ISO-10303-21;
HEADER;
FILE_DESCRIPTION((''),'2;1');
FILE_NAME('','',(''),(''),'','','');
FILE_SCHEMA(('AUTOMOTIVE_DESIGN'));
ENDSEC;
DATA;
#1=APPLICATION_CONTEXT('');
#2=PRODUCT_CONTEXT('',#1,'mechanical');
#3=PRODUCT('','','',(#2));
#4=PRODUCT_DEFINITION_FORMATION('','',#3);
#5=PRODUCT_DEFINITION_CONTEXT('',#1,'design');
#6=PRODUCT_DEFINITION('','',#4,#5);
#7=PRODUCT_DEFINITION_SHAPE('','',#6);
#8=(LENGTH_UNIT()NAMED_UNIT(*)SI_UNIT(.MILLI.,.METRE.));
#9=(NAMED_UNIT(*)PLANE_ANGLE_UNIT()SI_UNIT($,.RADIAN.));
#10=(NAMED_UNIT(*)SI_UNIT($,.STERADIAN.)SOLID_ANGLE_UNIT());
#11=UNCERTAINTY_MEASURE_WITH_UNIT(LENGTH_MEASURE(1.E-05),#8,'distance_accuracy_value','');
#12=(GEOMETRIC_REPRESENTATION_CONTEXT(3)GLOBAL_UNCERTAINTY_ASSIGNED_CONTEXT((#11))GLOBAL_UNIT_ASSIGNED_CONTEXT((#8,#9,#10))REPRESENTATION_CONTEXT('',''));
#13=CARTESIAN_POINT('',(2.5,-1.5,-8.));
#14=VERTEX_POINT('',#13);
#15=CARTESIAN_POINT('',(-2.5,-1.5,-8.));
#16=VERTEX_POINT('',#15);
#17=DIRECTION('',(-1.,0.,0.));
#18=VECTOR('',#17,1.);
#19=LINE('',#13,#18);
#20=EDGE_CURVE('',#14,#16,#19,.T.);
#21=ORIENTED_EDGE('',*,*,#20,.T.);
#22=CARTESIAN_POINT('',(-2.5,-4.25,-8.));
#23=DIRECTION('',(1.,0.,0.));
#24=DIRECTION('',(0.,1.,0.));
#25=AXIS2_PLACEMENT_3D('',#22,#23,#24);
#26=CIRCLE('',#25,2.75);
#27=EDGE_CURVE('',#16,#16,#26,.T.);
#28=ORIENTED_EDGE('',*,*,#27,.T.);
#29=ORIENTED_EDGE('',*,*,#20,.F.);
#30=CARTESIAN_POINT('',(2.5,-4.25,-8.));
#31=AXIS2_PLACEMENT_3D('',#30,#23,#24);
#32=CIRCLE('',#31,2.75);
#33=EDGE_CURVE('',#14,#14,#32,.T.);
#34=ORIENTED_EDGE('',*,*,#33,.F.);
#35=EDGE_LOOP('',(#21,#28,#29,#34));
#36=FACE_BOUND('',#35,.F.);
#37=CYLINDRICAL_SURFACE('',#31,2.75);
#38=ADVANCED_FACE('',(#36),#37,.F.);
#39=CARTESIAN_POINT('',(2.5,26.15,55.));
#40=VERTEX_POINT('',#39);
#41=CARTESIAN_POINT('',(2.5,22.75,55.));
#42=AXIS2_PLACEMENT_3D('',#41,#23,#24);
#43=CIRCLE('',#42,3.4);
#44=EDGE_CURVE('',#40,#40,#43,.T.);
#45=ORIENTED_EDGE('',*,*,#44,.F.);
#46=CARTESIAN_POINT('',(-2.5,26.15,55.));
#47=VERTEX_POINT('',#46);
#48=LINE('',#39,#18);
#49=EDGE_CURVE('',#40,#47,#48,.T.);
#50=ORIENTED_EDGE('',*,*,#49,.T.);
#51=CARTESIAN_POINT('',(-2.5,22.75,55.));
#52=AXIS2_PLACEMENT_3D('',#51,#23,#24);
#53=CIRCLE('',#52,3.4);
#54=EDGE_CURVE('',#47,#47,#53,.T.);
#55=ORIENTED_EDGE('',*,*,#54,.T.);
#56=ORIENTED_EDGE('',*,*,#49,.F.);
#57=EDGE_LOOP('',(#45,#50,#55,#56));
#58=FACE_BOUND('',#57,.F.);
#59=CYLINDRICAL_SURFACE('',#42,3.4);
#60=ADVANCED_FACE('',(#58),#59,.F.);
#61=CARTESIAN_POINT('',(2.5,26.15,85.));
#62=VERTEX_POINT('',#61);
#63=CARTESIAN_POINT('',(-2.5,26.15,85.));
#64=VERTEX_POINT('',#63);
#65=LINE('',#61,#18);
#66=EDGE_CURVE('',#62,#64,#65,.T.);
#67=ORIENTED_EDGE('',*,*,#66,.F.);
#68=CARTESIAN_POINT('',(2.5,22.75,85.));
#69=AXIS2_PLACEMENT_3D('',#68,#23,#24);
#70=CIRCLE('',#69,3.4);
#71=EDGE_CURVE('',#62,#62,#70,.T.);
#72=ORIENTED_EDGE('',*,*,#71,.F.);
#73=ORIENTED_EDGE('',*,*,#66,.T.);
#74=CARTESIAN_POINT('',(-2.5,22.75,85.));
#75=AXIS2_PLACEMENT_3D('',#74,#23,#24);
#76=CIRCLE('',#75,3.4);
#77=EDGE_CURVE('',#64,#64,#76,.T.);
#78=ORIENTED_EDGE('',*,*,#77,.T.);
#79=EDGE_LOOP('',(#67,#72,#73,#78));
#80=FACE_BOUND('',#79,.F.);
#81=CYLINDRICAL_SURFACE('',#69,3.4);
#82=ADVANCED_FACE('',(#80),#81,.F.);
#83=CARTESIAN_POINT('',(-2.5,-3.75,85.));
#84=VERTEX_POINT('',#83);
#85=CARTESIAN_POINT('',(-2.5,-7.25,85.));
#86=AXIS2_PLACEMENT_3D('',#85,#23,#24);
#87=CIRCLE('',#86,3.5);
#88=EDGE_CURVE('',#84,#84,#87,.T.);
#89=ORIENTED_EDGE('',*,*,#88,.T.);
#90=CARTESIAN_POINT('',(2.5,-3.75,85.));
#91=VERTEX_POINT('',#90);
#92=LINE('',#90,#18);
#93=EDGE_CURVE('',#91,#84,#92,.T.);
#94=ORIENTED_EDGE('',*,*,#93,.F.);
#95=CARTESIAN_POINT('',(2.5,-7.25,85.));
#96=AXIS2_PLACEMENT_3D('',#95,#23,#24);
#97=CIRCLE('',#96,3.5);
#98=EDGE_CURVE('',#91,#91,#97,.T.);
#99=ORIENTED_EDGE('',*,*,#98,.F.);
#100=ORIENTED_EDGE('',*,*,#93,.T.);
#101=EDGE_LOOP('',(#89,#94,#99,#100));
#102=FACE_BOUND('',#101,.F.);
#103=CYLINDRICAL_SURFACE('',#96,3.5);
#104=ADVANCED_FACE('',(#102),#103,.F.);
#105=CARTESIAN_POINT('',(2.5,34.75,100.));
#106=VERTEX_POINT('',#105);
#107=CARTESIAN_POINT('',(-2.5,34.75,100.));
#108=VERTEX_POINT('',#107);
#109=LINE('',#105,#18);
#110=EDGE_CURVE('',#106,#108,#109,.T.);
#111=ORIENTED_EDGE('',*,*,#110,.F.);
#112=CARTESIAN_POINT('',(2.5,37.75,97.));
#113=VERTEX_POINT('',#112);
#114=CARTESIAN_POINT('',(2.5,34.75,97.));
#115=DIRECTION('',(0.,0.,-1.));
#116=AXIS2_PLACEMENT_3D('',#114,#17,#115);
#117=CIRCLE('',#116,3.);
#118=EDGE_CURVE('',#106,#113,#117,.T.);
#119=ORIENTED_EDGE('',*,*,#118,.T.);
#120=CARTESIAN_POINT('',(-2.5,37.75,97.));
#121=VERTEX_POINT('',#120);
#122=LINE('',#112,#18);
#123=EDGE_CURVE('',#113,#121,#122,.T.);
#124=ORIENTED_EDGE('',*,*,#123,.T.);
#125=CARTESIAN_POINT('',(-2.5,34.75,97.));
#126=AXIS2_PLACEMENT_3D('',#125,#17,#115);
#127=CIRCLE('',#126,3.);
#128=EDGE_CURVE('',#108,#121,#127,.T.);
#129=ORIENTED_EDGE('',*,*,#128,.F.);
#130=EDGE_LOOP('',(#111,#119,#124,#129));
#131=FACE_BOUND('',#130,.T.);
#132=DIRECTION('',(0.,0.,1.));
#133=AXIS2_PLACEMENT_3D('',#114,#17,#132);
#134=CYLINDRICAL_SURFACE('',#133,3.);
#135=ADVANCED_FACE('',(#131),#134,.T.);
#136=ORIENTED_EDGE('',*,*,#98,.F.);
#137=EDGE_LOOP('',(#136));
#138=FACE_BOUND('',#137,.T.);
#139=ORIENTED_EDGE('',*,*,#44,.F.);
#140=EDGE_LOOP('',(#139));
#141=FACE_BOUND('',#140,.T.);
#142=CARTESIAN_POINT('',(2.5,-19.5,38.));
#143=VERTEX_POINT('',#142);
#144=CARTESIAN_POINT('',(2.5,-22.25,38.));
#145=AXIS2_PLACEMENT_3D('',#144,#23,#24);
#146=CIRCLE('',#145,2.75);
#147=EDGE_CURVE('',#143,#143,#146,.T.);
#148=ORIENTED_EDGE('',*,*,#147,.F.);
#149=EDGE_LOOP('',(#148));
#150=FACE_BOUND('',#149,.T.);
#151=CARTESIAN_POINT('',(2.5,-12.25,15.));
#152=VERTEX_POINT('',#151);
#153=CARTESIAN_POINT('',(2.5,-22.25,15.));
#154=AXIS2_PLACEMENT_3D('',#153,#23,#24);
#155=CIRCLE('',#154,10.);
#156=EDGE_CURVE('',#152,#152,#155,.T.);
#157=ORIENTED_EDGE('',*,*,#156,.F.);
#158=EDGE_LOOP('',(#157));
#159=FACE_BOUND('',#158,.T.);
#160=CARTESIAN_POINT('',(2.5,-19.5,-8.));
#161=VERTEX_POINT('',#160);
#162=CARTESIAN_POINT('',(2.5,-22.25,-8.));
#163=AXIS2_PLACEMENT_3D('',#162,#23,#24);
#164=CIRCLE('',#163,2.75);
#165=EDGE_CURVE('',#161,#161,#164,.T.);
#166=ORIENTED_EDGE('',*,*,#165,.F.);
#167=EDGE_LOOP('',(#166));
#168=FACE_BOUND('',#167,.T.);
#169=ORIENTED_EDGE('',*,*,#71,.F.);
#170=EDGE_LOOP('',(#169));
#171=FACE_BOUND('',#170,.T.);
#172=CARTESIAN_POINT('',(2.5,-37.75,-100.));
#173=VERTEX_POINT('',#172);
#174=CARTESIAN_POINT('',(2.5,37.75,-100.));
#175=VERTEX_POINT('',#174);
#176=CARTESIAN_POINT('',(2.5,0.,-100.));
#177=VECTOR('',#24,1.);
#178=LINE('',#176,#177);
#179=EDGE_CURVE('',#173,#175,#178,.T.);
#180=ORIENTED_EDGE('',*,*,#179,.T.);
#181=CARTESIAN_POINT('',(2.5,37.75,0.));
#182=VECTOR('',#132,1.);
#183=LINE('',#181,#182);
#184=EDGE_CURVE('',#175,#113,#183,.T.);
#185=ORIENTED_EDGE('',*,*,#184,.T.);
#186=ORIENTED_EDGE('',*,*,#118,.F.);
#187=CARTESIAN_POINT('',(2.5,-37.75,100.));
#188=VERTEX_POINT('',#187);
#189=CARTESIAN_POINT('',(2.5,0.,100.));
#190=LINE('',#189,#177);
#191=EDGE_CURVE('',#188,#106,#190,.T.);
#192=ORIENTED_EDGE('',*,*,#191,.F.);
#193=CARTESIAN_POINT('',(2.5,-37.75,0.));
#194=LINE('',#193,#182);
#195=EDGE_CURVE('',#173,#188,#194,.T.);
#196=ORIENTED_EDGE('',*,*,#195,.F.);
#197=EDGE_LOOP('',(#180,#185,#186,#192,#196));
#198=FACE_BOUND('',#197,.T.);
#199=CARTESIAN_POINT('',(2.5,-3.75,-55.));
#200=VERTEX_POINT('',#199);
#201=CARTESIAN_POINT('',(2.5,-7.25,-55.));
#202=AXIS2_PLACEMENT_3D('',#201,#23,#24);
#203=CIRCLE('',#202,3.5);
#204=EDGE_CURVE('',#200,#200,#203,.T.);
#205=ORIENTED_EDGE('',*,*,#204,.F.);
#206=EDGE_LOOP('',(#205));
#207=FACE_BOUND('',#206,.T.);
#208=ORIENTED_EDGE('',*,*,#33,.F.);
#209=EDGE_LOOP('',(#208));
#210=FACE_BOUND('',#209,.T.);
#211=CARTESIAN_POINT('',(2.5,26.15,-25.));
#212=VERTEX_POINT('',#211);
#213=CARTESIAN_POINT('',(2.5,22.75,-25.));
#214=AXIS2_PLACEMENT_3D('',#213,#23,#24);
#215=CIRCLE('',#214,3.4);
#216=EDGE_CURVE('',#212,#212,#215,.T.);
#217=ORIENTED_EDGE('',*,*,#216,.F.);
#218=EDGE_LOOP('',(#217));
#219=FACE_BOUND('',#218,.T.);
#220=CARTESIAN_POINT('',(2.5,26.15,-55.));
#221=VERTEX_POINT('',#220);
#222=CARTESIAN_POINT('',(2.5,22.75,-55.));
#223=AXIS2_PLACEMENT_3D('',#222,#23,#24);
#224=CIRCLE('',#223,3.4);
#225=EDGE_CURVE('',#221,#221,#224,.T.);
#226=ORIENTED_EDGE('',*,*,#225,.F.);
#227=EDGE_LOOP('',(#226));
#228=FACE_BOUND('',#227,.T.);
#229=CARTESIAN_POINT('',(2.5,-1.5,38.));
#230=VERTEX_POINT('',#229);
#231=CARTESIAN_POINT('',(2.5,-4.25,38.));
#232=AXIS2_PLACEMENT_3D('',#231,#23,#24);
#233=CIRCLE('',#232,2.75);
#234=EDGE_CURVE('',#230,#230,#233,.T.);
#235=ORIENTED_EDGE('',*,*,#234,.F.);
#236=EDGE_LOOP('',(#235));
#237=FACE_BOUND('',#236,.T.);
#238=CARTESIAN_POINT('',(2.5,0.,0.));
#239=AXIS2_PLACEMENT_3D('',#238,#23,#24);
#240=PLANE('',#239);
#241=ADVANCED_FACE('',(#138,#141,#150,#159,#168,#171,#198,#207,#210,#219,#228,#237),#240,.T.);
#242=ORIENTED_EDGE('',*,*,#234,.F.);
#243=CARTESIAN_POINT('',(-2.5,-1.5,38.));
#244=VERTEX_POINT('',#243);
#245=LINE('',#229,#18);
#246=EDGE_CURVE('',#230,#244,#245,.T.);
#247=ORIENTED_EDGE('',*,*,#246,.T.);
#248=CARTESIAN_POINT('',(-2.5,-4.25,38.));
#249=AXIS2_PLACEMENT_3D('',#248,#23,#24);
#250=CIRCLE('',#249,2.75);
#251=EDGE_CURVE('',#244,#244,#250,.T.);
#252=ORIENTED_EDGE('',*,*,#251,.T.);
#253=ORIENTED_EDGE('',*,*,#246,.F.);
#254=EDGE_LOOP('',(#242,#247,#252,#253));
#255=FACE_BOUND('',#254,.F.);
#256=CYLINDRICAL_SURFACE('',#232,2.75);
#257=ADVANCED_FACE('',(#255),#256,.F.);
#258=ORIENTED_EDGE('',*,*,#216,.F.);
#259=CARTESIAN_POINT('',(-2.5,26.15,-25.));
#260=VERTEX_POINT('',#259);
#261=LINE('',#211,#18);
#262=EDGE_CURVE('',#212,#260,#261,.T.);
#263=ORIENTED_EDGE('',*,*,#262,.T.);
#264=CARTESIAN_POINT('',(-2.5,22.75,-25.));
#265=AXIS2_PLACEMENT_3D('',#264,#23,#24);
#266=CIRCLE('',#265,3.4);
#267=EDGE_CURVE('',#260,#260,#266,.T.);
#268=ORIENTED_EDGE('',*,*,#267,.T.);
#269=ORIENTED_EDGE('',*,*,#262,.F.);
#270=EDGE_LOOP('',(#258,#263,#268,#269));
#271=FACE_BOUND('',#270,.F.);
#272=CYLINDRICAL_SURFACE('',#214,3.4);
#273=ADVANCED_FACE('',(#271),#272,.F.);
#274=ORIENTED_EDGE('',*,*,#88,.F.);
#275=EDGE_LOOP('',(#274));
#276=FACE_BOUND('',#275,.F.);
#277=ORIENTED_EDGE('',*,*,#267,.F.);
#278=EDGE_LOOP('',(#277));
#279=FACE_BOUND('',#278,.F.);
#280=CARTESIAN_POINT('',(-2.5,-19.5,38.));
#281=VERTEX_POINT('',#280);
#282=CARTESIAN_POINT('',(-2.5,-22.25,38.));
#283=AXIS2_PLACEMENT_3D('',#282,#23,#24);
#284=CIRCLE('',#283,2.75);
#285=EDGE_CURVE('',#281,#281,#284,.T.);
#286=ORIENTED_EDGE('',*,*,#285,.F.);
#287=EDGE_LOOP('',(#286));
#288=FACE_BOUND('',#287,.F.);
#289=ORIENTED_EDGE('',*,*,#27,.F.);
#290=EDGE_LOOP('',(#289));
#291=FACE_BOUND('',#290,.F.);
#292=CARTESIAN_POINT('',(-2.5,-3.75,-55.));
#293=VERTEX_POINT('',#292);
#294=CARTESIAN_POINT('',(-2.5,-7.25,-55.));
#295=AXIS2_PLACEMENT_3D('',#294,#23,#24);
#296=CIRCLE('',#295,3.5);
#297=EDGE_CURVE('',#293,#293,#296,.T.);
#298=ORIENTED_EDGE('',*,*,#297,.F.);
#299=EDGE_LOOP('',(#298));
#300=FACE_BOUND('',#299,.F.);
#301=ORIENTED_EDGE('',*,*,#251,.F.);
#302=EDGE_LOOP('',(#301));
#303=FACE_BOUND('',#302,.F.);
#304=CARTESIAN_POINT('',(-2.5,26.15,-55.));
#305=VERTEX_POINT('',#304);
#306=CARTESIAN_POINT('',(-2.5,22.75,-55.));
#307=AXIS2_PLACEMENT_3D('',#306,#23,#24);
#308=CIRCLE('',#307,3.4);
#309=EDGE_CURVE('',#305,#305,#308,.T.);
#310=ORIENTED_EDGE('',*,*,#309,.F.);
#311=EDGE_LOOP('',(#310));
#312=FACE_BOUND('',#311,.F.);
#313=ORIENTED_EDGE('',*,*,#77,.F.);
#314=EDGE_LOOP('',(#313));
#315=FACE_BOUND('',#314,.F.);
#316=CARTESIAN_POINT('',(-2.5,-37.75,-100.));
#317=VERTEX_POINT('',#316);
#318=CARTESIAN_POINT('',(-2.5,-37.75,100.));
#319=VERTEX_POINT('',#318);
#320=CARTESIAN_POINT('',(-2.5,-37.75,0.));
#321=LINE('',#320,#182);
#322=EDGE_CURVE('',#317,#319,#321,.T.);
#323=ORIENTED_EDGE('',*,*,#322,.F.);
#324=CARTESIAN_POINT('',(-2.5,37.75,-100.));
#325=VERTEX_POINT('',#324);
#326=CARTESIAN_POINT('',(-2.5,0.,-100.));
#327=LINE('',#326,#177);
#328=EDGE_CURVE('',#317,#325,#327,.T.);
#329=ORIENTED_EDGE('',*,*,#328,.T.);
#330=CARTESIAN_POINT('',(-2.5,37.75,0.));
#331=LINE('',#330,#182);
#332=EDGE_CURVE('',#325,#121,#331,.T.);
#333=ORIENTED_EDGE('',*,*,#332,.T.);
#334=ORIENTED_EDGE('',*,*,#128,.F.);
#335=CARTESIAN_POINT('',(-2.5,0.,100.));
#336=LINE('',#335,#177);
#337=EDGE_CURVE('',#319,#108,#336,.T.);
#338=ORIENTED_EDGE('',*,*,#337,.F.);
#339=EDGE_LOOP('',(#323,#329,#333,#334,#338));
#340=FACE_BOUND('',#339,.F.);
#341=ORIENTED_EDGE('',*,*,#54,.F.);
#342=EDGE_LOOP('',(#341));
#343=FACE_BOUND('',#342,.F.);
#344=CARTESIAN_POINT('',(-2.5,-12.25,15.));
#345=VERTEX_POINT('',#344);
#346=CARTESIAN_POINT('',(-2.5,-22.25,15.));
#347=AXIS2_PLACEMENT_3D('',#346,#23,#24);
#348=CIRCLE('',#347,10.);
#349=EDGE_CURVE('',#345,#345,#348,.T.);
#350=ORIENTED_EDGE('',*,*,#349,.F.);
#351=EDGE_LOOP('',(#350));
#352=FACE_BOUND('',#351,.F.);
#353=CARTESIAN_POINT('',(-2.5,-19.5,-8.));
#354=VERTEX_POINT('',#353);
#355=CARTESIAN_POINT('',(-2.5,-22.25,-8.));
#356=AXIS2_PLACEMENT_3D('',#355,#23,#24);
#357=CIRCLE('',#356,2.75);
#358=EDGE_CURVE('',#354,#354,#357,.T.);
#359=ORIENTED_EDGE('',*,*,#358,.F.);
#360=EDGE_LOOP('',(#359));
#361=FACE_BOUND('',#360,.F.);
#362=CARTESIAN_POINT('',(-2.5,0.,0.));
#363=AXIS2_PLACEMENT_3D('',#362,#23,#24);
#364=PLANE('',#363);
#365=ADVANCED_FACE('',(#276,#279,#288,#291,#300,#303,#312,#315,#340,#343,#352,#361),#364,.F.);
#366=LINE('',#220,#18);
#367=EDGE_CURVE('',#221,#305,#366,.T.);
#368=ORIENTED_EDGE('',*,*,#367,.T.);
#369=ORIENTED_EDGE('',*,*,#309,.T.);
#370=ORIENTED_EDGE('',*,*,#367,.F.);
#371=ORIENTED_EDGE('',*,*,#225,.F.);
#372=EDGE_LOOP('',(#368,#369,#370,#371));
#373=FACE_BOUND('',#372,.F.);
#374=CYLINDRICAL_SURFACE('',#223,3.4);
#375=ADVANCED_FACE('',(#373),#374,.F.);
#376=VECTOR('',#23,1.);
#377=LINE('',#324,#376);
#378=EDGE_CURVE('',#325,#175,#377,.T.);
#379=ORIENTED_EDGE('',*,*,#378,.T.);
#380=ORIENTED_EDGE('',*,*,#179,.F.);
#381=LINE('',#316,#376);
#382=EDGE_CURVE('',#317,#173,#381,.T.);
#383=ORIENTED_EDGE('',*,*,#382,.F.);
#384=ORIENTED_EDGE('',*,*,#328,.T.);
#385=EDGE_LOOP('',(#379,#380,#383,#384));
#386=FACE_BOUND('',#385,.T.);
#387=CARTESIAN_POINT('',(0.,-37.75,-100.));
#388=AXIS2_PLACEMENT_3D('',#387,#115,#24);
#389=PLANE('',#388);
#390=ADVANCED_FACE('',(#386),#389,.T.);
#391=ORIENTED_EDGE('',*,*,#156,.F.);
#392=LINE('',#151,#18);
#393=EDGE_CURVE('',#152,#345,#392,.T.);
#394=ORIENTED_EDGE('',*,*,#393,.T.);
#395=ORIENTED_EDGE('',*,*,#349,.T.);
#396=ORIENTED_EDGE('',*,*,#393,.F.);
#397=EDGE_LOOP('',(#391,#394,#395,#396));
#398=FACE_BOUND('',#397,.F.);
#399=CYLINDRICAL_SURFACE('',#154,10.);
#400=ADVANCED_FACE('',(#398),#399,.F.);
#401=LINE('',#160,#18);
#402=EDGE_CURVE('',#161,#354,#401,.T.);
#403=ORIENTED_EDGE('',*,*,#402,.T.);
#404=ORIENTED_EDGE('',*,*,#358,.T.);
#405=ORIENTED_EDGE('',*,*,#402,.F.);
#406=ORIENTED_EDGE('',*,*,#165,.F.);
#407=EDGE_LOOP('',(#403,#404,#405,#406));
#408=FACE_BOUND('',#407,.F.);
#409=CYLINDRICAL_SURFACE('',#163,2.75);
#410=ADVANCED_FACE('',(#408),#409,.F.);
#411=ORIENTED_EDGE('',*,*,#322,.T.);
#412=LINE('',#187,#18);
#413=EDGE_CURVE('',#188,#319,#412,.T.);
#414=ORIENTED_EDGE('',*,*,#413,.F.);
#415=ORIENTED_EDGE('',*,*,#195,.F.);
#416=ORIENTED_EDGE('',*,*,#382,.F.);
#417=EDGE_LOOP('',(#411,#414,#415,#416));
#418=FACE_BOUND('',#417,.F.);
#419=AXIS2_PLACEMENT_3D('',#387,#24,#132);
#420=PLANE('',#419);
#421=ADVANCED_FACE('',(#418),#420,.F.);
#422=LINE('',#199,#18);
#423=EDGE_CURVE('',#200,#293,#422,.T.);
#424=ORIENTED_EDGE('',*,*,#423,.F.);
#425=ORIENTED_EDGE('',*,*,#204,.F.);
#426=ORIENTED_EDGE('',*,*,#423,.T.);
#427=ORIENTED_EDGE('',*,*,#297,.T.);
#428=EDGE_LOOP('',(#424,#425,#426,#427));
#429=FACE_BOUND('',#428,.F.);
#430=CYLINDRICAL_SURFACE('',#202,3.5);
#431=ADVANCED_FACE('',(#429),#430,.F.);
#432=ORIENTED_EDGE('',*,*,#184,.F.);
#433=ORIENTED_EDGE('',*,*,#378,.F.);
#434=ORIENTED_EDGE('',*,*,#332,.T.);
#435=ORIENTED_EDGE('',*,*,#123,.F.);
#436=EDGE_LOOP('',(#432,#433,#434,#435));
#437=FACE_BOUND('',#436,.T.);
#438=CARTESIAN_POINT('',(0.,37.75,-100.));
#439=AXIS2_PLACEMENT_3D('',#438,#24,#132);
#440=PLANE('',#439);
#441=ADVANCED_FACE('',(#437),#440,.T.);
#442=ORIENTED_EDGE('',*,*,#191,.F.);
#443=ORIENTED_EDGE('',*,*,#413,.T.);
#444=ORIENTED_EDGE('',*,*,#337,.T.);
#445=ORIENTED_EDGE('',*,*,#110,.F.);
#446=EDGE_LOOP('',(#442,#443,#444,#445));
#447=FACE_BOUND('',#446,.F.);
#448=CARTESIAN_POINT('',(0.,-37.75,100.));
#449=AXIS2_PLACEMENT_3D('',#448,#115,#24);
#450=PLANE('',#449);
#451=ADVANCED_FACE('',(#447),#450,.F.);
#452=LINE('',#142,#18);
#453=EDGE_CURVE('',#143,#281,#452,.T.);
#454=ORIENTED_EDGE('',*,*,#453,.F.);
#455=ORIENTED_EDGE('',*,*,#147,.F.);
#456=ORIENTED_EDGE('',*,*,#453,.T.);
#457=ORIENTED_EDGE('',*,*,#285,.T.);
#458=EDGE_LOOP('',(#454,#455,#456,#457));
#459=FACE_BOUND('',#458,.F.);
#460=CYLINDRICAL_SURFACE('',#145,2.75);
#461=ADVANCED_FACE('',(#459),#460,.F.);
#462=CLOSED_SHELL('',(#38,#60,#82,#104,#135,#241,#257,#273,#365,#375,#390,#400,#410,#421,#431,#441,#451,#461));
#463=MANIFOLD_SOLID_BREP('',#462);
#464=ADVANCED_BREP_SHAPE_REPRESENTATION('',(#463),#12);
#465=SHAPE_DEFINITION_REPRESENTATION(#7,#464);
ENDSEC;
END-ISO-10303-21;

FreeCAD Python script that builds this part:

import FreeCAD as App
import Part
import Sketcher
from FreeCAD import Vector
Q = App.Units.Quantity


def edges_at(feature, points):
    """Names of the edges that pass closest to the given points."""
    edges = feature.Shape.Edges
    near = lambda p: min(range(len(edges)), key=lambda i: edges[i].distToShape(Part.Vertex(*p))[0])
    return sorted({f"Edge{near(p) + 1}" for p in points})

doc = App.newDocument("Part")
body = doc.addObject("PartDesign::Body", "Body")

# Sketch on YZ plane
sketch1 = body.newObject("Sketcher::SketchObject", "Sketch")
sketch1.AttachmentSupport = (doc.getObject("YZ_Plane"), [""])
sketch1.MapMode = "FlatFace"
sketch1.addGeometry([
    Part.LineSegment(Vector(-38, 100, 0), Vector(-38, -100, 0)),
    Part.LineSegment(Vector(-38, -100, 0), Vector(38, -100, 0)),
    Part.LineSegment(Vector(38, -100, 0), Vector(38, 100, 0)),
    Part.LineSegment(Vector(38, 100, 0), Vector(-38, 100, 0)),
], False)
sketch1.addConstraint([
    Sketcher.Constraint("Coincident", 0, 2, 1, 1),
    Sketcher.Constraint("Coincident", 1, 2, 2, 1),
    Sketcher.Constraint("Coincident", 2, 2, 3, 1),
    Sketcher.Constraint("Coincident", 3, 2, 0, 1),
    Sketcher.Constraint("Vertical", 0),
    Sketcher.Constraint("Horizontal", 1),
    Sketcher.Constraint("Vertical", 2),
    Sketcher.Constraint("Horizontal", 3),
    Sketcher.Constraint("Symmetric", 0, 2, 2, 2, -1, 1),
    Sketcher.Constraint("DistanceY", 0, 2, 0, 1, Q("200 mm")),
    Sketcher.Constraint("DistanceX", 1, 1, 1, 2, Q("75.5 mm")),
])
pad1 = body.newObject("PartDesign::Pad", "Pad")
pad1.Profile = sketch1
pad1.Length = 5
pad1.Midplane = True

# Sketch on YZ plane
sketch2 = body.newObject("Sketcher::SketchObject", "Sketch001")
sketch2.AttachmentSupport = (doc.getObject("YZ_Plane"), [""])
sketch2.MapMode = "FlatFace"
sketch2.AttachmentOffset = App.Placement(Vector(0, 0, 2.5), App.Rotation())
sketch2.addGeometry([
    Part.Circle(Vector(22.8, 85, 0), Vector(0, 0, 1), 3.4),  # 0
    Part.Circle(Vector(22.8, 55, 0), Vector(0, 0, 1), 3.4),  # 1
    Part.Circle(Vector(22.8, -55, 0), Vector(0, 0, 1), 3.4),  # 2
    Part.Circle(Vector(22.8, -25, 0), Vector(0, 0, 1), 3.4),  # 3
    Part.Circle(Vector(-7.2, 85, 0), Vector(0, 0, 1), 3.5),  # 4
    Part.Circle(Vector(-7.2, -55, 0), Vector(0, 0, 1), 3.5),  # 5
    Part.Circle(Vector(-22.2, 15, 0), Vector(0, 0, 1), 10),  # 6
    Part.Circle(Vector(-22.2, 38, 0), Vector(0, 0, 1), 2.8),  # 7
    Part.Circle(Vector(-4.2, 38, 0), Vector(0, 0, 1), 2.8),  # 8
    Part.Circle(Vector(-22.2, -8, 0), Vector(0, 0, 1), 2.8),  # 9
    Part.Circle(Vector(-4.2, -8, 0), Vector(0, 0, 1), 2.8),  # 10
], False)
sketch2.addConstraint([
    Sketcher.Constraint("Equal", 0, 1),
    Sketcher.Constraint("Equal", 1, 2),
    Sketcher.Constraint("Equal", 2, 3),
    Sketcher.Constraint("Equal", 4, 5),
    Sketcher.Constraint("Equal", 7, 8),
    Sketcher.Constraint("Equal", 8, 9),
    Sketcher.Constraint("Equal", 9, 10),
    Sketcher.Constraint("Symmetric", 1, 3, 2, 3, -1),
    Sketcher.Constraint("Horizontal", 0, 3, 4, 3),
    Sketcher.Constraint("Horizontal", 2, 3, 5, 3),
    Sketcher.Constraint("Horizontal", 7, 3, 8, 3),
    Sketcher.Constraint("Horizontal", 9, 3, 10, 3),
    Sketcher.Constraint("Vertical", 0, 3, 1, 3),
    Sketcher.Constraint("Vertical", 2, 3, 3, 3),
    Sketcher.Constraint("Vertical", 4, 3, 5, 3),
    Sketcher.Constraint("Vertical", 6, 3, 7, 3),
    Sketcher.Constraint("Vertical", 7, 3, 9, 3),
    Sketcher.Constraint("Vertical", 8, 3, 10, 3),
    Sketcher.Constraint("Diameter", 4, Q("7 mm")),
    Sketcher.Constraint("Diameter", 6, Q("20 mm")),
    Sketcher.Constraint("Diameter", 0, Q("6.8 mm")),
    Sketcher.Constraint("Diameter", 7, Q("5.5 mm")),
    Sketcher.Constraint("DistanceY", -1, 1, 0, 3, Q("85 mm")),
    Sketcher.Constraint("DistanceY", -1, 1, 1, 3, Q("55 mm")),
    Sketcher.Constraint("DistanceY", 3, 3, -1, 1, Q("25 mm")),
    Sketcher.Constraint("DistanceY", -1, 1, 6, 3, Q("15 mm")),
    Sketcher.Constraint("DistanceY", -1, 1, 7, 3, Q("38 mm")),
    Sketcher.Constraint("DistanceY", 9, 3, -1, 1, Q("8 mm")),
    Sketcher.Constraint("DistanceX", 4, 3, 0, 3, Q("30 mm")),
    Sketcher.Constraint("DistanceX", 6, 3, 1, 3, Q("45 mm")),
    Sketcher.Constraint("DistanceX", 7, 3, 8, 3, Q("18 mm")),
    Sketcher.Constraint("DistanceX", -1, 1, 0, 3, Q("22.75 mm")),
])
pocket1 = body.newObject("PartDesign::Pocket", "Pocket")
pocket1.Profile = sketch2
pocket1.Length = 5
doc.recompute()

fillet = body.newObject("PartDesign::Fillet", "Fillet")
fillet.Base = (pocket1, edges_at(pocket1, [(0, 37.75, 100)]))
fillet.Radius = 3

doc.recompute()
